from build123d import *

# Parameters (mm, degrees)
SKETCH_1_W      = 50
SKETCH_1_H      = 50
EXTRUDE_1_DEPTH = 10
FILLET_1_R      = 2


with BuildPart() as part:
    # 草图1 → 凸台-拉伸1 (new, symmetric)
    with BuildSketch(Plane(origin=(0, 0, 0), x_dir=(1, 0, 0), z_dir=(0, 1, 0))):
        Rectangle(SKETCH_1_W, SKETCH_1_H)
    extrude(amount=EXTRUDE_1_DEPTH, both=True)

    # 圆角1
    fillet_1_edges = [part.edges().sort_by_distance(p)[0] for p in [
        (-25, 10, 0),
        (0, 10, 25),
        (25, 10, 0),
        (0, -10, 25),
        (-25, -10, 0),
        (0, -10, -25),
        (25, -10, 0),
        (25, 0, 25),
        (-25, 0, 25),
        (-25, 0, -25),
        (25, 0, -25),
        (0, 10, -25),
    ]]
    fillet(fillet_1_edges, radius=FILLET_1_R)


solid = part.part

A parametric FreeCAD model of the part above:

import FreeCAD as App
import Part
import Sketcher

V = App.Vector

doc = App.newDocument("Part")
body = doc.addObject("PartDesign::Body", "Body")

sketch1 = doc.addObject("Sketcher::SketchObject", "Sketch")
body.addObject(sketch1)
sketch1.AttachmentSupport = (doc.XZ_Plane, [""])
sketch1.MapMode = "FlatFace"
sketch1.addGeometry([
    Part.LineSegment(V(-25, -25, 0), V(-25, 25, 0)),
    Part.LineSegment(V(-25, 25, 0), V(25, 25, 0)),
    Part.LineSegment(V(25, 25, 0), V(25, -25, 0)),
    Part.LineSegment(V(25, -25, 0), V(-25, -25, 0)),
], False)
sketch1.addConstraint([
    Sketcher.Constraint("Coincident", 0, 2, 1, 1),
    Sketcher.Constraint("Coincident", 1, 2, 2, 1),
    Sketcher.Constraint("Coincident", 2, 2, 3, 1),
    Sketcher.Constraint("Coincident", 3, 2, 0, 1),
    Sketcher.Constraint("Vertical", 0),
    Sketcher.Constraint("Horizontal", 1),
    Sketcher.Constraint("Vertical", 2),
    Sketcher.Constraint("Horizontal", 3),
    Sketcher.Constraint("Symmetric", 0, 2, 2, 2, -1, 1),
    Sketcher.Constraint("Equal", 3, 0),
    Sketcher.Constraint("DistanceX", 1, 1, 1, 2, 50.0),
])
pad1 = doc.addObject("PartDesign::Pad", "Pad")
body.addObject(pad1)
pad1.Profile = sketch1
pad1.Length = 20
pad1.Midplane = True
doc.recompute()

fillet = doc.addObject("PartDesign::Fillet", "Fillet")
body.addObject(fillet)
fillet.Base = (pad1, ["Edge1"])
fillet.UseAllEdges = True
fillet.Radius = 2

doc.recompute()
